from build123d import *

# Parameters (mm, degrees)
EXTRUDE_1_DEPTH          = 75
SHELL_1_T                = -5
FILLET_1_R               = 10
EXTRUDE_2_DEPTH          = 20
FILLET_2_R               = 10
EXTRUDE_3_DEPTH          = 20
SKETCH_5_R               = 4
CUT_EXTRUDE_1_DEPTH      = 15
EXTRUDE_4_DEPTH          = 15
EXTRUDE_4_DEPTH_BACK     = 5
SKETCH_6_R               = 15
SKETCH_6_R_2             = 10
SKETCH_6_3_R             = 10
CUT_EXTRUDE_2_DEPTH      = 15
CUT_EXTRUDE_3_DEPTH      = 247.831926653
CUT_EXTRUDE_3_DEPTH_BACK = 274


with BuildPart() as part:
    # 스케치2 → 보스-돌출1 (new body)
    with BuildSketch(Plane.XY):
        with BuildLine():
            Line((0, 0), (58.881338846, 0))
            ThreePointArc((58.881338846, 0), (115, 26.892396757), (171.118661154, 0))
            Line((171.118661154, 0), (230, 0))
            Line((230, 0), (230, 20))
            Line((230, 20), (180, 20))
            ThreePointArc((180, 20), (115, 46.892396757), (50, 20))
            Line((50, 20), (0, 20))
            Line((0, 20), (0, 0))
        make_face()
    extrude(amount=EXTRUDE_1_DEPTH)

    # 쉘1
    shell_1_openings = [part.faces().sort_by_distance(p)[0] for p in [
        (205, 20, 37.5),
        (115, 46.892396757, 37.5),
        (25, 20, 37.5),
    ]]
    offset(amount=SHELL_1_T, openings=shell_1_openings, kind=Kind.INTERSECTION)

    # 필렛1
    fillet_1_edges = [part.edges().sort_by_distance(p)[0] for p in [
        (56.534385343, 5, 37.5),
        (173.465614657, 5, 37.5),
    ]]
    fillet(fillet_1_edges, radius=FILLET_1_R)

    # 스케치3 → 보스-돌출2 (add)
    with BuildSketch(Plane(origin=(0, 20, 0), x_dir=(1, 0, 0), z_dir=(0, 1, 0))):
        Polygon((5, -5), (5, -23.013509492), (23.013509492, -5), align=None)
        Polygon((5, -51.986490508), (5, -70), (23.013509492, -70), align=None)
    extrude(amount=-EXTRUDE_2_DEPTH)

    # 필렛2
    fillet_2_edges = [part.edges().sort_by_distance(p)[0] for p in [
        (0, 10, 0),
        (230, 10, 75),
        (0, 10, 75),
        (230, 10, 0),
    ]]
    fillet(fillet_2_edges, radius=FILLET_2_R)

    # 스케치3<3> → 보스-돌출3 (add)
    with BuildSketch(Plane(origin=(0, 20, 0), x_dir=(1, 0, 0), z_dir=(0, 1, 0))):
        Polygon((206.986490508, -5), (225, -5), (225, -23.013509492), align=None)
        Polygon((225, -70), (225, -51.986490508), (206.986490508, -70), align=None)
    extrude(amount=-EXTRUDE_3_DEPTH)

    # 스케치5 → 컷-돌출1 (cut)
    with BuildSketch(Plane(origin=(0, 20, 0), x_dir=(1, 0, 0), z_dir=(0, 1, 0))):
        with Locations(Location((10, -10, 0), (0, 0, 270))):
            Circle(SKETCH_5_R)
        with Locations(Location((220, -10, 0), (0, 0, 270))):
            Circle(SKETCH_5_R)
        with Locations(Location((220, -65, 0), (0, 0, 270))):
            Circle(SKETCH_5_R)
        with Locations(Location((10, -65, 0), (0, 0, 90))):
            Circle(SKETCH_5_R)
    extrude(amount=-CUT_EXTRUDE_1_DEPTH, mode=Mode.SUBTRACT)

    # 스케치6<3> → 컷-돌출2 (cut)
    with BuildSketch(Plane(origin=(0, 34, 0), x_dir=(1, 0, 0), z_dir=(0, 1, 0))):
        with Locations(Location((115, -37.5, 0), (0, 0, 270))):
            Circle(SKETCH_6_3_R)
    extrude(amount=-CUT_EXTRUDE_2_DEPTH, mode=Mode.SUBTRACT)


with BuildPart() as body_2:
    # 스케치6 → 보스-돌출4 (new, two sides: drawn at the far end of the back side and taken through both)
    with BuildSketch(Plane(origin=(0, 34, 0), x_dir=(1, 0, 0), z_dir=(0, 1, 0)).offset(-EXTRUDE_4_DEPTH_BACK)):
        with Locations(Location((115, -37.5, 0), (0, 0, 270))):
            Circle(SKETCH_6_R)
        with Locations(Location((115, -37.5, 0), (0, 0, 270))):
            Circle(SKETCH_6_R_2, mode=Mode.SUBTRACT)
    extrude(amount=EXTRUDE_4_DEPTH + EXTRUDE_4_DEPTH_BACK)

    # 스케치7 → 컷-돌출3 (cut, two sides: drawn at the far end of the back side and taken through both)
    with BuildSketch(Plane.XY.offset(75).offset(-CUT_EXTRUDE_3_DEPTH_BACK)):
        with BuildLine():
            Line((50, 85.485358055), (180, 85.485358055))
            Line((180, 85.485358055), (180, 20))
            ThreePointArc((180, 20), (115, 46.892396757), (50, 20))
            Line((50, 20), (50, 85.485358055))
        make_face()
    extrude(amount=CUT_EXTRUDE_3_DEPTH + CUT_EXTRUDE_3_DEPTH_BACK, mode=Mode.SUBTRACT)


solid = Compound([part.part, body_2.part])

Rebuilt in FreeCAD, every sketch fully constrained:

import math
import FreeCAD as App
import Part
import Sketcher
from FreeCAD import Vector
Q = App.Units.Quantity


def edges_at(feature, points):
    """Names of the edges that pass closest to the given points."""
    edges = feature.Shape.Edges
    near = lambda p: min(range(len(edges)), key=lambda i: edges[i].distToShape(Part.Vertex(*p))[0])
    return sorted({f"Edge{near(p) + 1}" for p in points})


def faces_at(feature, points):
    """Names of the faces that lie closest to the given points."""
    faces = feature.Shape.Faces
    near = lambda p: min(range(len(faces)), key=lambda i: faces[i].distToShape(Part.Vertex(*p))[0])
    return sorted({f"Face{near(p) + 1}" for p in points})


def add_polygon(sketch, points):
    """Adds a closed chain of lines whose ends are joined by coincident constraints."""
    first, n = sketch.GeometryCount, len(points)
    for a, b in zip(points, points[1:] + points[:1]):
        sketch.addGeometry(Part.LineSegment(App.Vector(*a, 0), App.Vector(*b, 0)), False)
    for i in range(n):
        sketch.addConstraint(Sketcher.Constraint("Coincident", first + i, 2, first + (i + 1) % n, 1))

doc = App.newDocument("Part")
body = doc.addObject("PartDesign::Body", "Body")

# Sketch on XY plane
sketch1 = doc.addObject("Sketcher::SketchObject", "Sketch")
body.addObject(sketch1)
sketch1.AttachmentSupport = (doc.XY_Plane, [""])
sketch1.MapMode = "FlatFace"
sketch1.addGeometry([
    Part.LineSegment(Vector(0, 0, 0), Vector(59, 0, 0)),  # 0
    Part.ArcOfCircle(Part.Circle(Vector(115, -45, 0), Vector(0, 0, 1), 72), math.radians(39), math.radians(141)),  # 1
    Part.LineSegment(Vector(171, 0, 0), Vector(230, 0, 0)),  # 2
    Part.LineSegment(Vector(230, 0, 0), Vector(230, 20, 0)),  # 3
    Part.LineSegment(Vector(230, 20, 0), Vector(180, 20, 0)),  # 4
    Part.ArcOfCircle(Part.Circle(Vector(115, -45, 0), Vector(0, 0, 1), 92), math.radians(45), math.radians(135)),  # 5
    Part.LineSegment(Vector(50, 20, 0), Vector(0, 20, 0)),  # 6
    Part.LineSegment(Vector(0, 20, 0), Vector(0, 0, 0)),  # 7
], False)
sketch1.addConstraint([
    Sketcher.Constraint("Coincident", 0, 2, 1, 2),
    Sketcher.Constraint("Coincident", 1, 1, 2, 1),
    Sketcher.Constraint("Coincident", 2, 2, 3, 1),
    Sketcher.Constraint("Coincident", 3, 2, 4, 1),
    Sketcher.Constraint("Coincident", 4, 2, 5, 1),
    Sketcher.Constraint("Coincident", 5, 2, 6, 1),
    Sketcher.Constraint("Coincident", 6, 2, 7, 1),
    Sketcher.Constraint("Coincident", 7, 2, 0, 1),
    Sketcher.Constraint("Horizontal", 0),
    Sketcher.Constraint("Horizontal", 2),
    Sketcher.Constraint("Vertical", 3),
    Sketcher.Constraint("Horizontal", 4),
    Sketcher.Constraint("Horizontal", 6),
    Sketcher.Constraint("Vertical", 7),
    Sketcher.Constraint("Coincident", 7, 2, -1, 1),
    Sketcher.Constraint("Coincident", 5, 3, 1, 3),
    Sketcher.Constraint("PointOnObject", 1, 1, -1),
    Sketcher.Constraint("Horizontal", 4, 2, 5, 2),
    Sketcher.Constraint("Equal", 0, 2),
    Sketcher.Constraint("Radius", 1, Q("72 mm")),
    Sketcher.Constraint("Radius", 5, Q("92 mm")),
    Sketcher.Constraint("DistanceX", 4, 2, 4, 1, Q("50 mm")),
    Sketcher.Constraint("DistanceY", 3, 1, 3, 2, Q("20 mm")),
    Sketcher.Constraint("DistanceX", -1, 1, 1, 3, Q("115 mm")),
])
pad1 = doc.addObject("PartDesign::Pad", "Pad")
body.addObject(pad1)
pad1.Profile = sketch1
pad1.Length = 75
doc.recompute()

thickness = doc.addObject("PartDesign::Thickness", "Thickness")
body.addObject(thickness)
thickness.Base = (pad1, faces_at(pad1, [(205, 20, 37.5), (115, 46.892, 37.5), (25, 20, 37.5)]))
thickness.Value = 5
thickness.Reversed = True
thickness.Join = "Intersection"
doc.recompute()

fillet = doc.addObject("PartDesign::Fillet", "Fillet")
body.addObject(fillet)
fillet.Base = (thickness, edges_at(thickness, [(56.534, 5, 37.5), (173.466, 5, 37.5)]))
fillet.Radius = 10

# Sketch on XZ plane
sketch2 = doc.addObject("Sketcher::SketchObject", "Sketch001")
body.addObject(sketch2)
sketch2.AttachmentSupport = (doc.XZ_Plane, [""])
sketch2.MapMode = "FlatFace"
sketch2.AttachmentOffset = App.Placement(Vector(0, 0, -20), App.Rotation())
add_polygon(sketch2, [(5, 5), (5, 23), (23, 5)])  # lines 0-2
add_polygon(sketch2, [(5, 52), (5, 70), (23, 70)])  # lines 3-5
sketch2.addConstraint([
    Sketcher.Constraint("Vertical", 0),
    Sketcher.Constraint("Horizontal", 2),
    Sketcher.Constraint("Vertical", 3),
    Sketcher.Constraint("Horizontal", 4),
    Sketcher.Constraint("Perpendicular", 1, 5),
    Sketcher.Constraint("Vertical", 2, 2, 3, 2),
    Sketcher.Constraint("Vertical", 1, 2, 4, 2),
    Sketcher.Constraint("Equal", 4, 0),
    Sketcher.Constraint("DistanceX", -1, 1, 0, 2, Q("5 mm")),
    Sketcher.Constraint("DistanceY", -1, 1, 1, 2, Q("5 mm")),
    Sketcher.Constraint("DistanceY", -1, 1, 3, 2, Q("70 mm")),
    Sketcher.Constraint("DistanceX", 2, 2, 2, 1, Q("18.013509 mm")),
])
pad2 = doc.addObject("PartDesign::Pad", "Pad001")
body.addObject(pad2)
pad2.Profile = sketch2
pad2.Length = 20
doc.recompute()

fillet2 = doc.addObject("PartDesign::Fillet", "Fillet001")
body.addObject(fillet2)
fillet2.Base = (pad2, edges_at(pad2, [
    (0, 10, 0),
    (230, 10, 75),
    (0, 10, 75),
    (230, 10, 0),
]))
fillet2.Radius = 10

# Sketch on XZ plane
sketch3 = doc.addObject("Sketcher::SketchObject", "Sketch002")
body.addObject(sketch3)
sketch3.AttachmentSupport = (doc.XZ_Plane, [""])
sketch3.MapMode = "FlatFace"
sketch3.AttachmentOffset = App.Placement(Vector(0, 0, -20), App.Rotation())
add_polygon(sketch3, [(225, 5), (207, 5), (225, 23)])  # lines 0-2
add_polygon(sketch3, [(225, 70), (225, 52), (207, 70)])  # lines 3-5
sketch3.addConstraint([
    Sketcher.Constraint("Horizontal", 0),
    Sketcher.Constraint("Vertical", 2),
    Sketcher.Constraint("Vertical", 3),
    Sketcher.Constraint("Horizontal", 5),
    Sketcher.Constraint("Perpendicular", 1, 4),
    Sketcher.Constraint("Vertical", 2, 2, 3, 2),
    Sketcher.Constraint("Vertical", 0, 2, 4, 2),
    Sketcher.Constraint("Equal", 5, 2),
    Sketcher.Constraint("DistanceY", -1, 1, 0, 2, Q("5 mm")),
    Sketcher.Constraint("DistanceX", -1, 1, 1, 2, Q("225 mm")),
    Sketcher.Constraint("DistanceY", -1, 1, 4, 2, Q("70 mm")),
    Sketcher.Constraint("DistanceX", 0, 2, 0, 1, Q("18.013509 mm")),
])
pad3 = doc.addObject("PartDesign::Pad", "Pad002")
body.addObject(pad3)
pad3.Profile = sketch3
pad3.Length = 20

# Sketch on XZ plane
sketch4 = doc.addObject("Sketcher::SketchObject", "Sketch003")
body.addObject(sketch4)
sketch4.AttachmentSupport = (doc.XZ_Plane, [""])
sketch4.MapMode = "FlatFace"
sketch4.AttachmentOffset = App.Placement(Vector(0, 0, -20), App.Rotation())
sketch4.addGeometry([
    Part.Circle(Vector(10, 10, 0), Vector(0, 0, 1), 4),
    Part.Circle(Vector(220, 10, 0), Vector(0, 0, 1), 4),
    Part.Circle(Vector(220, 65, 0), Vector(0, 0, 1), 4),
    Part.Circle(Vector(10, 65, 0), Vector(0, 0, 1), 4),
], False)
sketch4.addConstraint([
    Sketcher.Constraint("Equal", 0, 1),
    Sketcher.Constraint("Equal", 1, 2),
    Sketcher.Constraint("Equal", 2, 3),
    Sketcher.Constraint("Horizontal", 0, 3, 1, 3),
    Sketcher.Constraint("Horizontal", 2, 3, 3, 3),
    Sketcher.Constraint("Vertical", 1, 3, 2, 3),
    Sketcher.Constraint("Vertical", 0, 3, 3, 3),
    Sketcher.Constraint("Diameter", 0, Q("8 mm")),
    Sketcher.Constraint("DistanceX", -1, 1, 0, 3, Q("10 mm")),
    Sketcher.Constraint("DistanceY", -1, 1, 0, 3, Q("10 mm")),
    Sketcher.Constraint("DistanceX", -1, 1, 1, 3, Q("220 mm")),
    Sketcher.Constraint("DistanceY", -1, 1, 2, 3, Q("65 mm")),
])
pocket1 = doc.addObject("PartDesign::Pocket", "Pocket")
body.addObject(pocket1)
pocket1.Profile = sketch4
pocket1.Length = 15
pocket1.Reversed = True

# Sketch on XZ plane
sketch5 = doc.addObject("Sketcher::SketchObject", "Sketch004")
body.addObject(sketch5)
sketch5.AttachmentSupport = (doc.XZ_Plane, [""])
sketch5.MapMode = "FlatFace"
sketch5.AttachmentOffset = App.Placement(Vector(0, 0, -34), App.Rotation())
sketch5.addGeometry(Part.Circle(Vector(115, 38, 0), Vector(0, 0, 1), 10), False)
sketch5.addConstraint([
    Sketcher.Constraint("Diameter", 0, Q("20 mm")),
    Sketcher.Constraint("DistanceX", -1, 1, 0, 3, Q("115 mm")),
    Sketcher.Constraint("DistanceY", -1, 1, 0, 3, Q("37.5 mm")),
])
pocket2 = doc.addObject("PartDesign::Pocket", "Pocket001")
body.addObject(pocket2)
pocket2.Profile = sketch5
pocket2.Length = 15
pocket2.Reversed = True
body2 = doc.addObject("PartDesign::Body", "Body001")

# Sketch on XZ plane
sketch6 = doc.addObject("Sketcher::SketchObject", "Sketch005")
body2.addObject(sketch6)
sketch6.AttachmentSupport = (doc.getObject("XZ_Plane001"), [""])
sketch6.MapMode = "FlatFace"
sketch6.AttachmentOffset = App.Placement(Vector(0, 0, -34), App.Rotation())
sketch6.addGeometry([
    Part.Circle(Vector(115, 38, 0), Vector(0, 0, 1), 15),
    Part.Circle(Vector(115, 38, 0), Vector(0, 0, 1), 10),
], False)
sketch6.addConstraint([
    Sketcher.Constraint("Coincident", 1, 3, 0, 3),
    Sketcher.Constraint("Diameter", 0, Q("30 mm")),
    Sketcher.Constraint("Diameter", 1, Q("20 mm")),
    Sketcher.Constraint("DistanceX", -1, 1, 0, 3, Q("115 mm")),
    Sketcher.Constraint("DistanceY", -1, 1, 0, 3, Q("37.5 mm")),
])
pad4 = doc.addObject("PartDesign::Pad", "Pad003")
body2.addObject(pad4)
pad4.Profile = sketch6
pad4.Type = "TwoLengths"
pad4.Length = 15
pad4.Length2 = 5
pad4.Reversed = True

# Sketch on XY plane
sketch7 = doc.addObject("Sketcher::SketchObject", "Sketch006")
body2.addObject(sketch7)
sketch7.AttachmentSupport = (doc.getObject("XY_Plane001"), [""])
sketch7.MapMode = "FlatFace"
sketch7.AttachmentOffset = App.Placement(Vector(0, 0, 75), App.Rotation())
sketch7.addGeometry([
    Part.LineSegment(Vector(180, 85, 0), Vector(50, 85, 0)),
    Part.LineSegment(Vector(50, 85, 0), Vector(50, 20, 0)),
    Part.ArcOfCircle(Part.Circle(Vector(115, -45, 0), Vector(0, 0, 1), 92), math.radians(45), math.radians(135)),
    Part.LineSegment(Vector(180, 20, 0), Vector(180, 85, 0)),
], False)
sketch7.addConstraint([
    Sketcher.Constraint("Coincident", 0, 2, 1, 1),
    Sketcher.Constraint("Coincident", 1, 2, 2, 2),
    Sketcher.Constraint("Coincident", 2, 1, 3, 1),
    Sketcher.Constraint("Coincident", 3, 2, 0, 1),
    Sketcher.Constraint("Horizontal", 0),
    Sketcher.Constraint("Vertical", 1),
    Sketcher.Constraint("Vertical", 3),
    Sketcher.Constraint("Horizontal", 1, 2, 2, 1),
    Sketcher.Constraint("Radius", 2, Q("92 mm")),
    Sketcher.Constraint("DistanceX", 0, 2, 0, 1, Q("130 mm")),
    Sketcher.Constraint("DistanceX", -1, 1, 2, 3, Q("115 mm")),
    Sketcher.Constraint("DistanceY", -1, 1, 1, 2, Q("20 mm")),
    Sketcher.Constraint("DistanceY", 1, 2, 1, 1, Q("65.485358 mm")),
])
pocket3 = doc.addObject("PartDesign::Pocket", "Pocket002")
body2.addObject(pocket3)
pocket3.Profile = sketch7
pocket3.Type = "ThroughAll"
pocket3.Midplane = True

doc.recompute()
